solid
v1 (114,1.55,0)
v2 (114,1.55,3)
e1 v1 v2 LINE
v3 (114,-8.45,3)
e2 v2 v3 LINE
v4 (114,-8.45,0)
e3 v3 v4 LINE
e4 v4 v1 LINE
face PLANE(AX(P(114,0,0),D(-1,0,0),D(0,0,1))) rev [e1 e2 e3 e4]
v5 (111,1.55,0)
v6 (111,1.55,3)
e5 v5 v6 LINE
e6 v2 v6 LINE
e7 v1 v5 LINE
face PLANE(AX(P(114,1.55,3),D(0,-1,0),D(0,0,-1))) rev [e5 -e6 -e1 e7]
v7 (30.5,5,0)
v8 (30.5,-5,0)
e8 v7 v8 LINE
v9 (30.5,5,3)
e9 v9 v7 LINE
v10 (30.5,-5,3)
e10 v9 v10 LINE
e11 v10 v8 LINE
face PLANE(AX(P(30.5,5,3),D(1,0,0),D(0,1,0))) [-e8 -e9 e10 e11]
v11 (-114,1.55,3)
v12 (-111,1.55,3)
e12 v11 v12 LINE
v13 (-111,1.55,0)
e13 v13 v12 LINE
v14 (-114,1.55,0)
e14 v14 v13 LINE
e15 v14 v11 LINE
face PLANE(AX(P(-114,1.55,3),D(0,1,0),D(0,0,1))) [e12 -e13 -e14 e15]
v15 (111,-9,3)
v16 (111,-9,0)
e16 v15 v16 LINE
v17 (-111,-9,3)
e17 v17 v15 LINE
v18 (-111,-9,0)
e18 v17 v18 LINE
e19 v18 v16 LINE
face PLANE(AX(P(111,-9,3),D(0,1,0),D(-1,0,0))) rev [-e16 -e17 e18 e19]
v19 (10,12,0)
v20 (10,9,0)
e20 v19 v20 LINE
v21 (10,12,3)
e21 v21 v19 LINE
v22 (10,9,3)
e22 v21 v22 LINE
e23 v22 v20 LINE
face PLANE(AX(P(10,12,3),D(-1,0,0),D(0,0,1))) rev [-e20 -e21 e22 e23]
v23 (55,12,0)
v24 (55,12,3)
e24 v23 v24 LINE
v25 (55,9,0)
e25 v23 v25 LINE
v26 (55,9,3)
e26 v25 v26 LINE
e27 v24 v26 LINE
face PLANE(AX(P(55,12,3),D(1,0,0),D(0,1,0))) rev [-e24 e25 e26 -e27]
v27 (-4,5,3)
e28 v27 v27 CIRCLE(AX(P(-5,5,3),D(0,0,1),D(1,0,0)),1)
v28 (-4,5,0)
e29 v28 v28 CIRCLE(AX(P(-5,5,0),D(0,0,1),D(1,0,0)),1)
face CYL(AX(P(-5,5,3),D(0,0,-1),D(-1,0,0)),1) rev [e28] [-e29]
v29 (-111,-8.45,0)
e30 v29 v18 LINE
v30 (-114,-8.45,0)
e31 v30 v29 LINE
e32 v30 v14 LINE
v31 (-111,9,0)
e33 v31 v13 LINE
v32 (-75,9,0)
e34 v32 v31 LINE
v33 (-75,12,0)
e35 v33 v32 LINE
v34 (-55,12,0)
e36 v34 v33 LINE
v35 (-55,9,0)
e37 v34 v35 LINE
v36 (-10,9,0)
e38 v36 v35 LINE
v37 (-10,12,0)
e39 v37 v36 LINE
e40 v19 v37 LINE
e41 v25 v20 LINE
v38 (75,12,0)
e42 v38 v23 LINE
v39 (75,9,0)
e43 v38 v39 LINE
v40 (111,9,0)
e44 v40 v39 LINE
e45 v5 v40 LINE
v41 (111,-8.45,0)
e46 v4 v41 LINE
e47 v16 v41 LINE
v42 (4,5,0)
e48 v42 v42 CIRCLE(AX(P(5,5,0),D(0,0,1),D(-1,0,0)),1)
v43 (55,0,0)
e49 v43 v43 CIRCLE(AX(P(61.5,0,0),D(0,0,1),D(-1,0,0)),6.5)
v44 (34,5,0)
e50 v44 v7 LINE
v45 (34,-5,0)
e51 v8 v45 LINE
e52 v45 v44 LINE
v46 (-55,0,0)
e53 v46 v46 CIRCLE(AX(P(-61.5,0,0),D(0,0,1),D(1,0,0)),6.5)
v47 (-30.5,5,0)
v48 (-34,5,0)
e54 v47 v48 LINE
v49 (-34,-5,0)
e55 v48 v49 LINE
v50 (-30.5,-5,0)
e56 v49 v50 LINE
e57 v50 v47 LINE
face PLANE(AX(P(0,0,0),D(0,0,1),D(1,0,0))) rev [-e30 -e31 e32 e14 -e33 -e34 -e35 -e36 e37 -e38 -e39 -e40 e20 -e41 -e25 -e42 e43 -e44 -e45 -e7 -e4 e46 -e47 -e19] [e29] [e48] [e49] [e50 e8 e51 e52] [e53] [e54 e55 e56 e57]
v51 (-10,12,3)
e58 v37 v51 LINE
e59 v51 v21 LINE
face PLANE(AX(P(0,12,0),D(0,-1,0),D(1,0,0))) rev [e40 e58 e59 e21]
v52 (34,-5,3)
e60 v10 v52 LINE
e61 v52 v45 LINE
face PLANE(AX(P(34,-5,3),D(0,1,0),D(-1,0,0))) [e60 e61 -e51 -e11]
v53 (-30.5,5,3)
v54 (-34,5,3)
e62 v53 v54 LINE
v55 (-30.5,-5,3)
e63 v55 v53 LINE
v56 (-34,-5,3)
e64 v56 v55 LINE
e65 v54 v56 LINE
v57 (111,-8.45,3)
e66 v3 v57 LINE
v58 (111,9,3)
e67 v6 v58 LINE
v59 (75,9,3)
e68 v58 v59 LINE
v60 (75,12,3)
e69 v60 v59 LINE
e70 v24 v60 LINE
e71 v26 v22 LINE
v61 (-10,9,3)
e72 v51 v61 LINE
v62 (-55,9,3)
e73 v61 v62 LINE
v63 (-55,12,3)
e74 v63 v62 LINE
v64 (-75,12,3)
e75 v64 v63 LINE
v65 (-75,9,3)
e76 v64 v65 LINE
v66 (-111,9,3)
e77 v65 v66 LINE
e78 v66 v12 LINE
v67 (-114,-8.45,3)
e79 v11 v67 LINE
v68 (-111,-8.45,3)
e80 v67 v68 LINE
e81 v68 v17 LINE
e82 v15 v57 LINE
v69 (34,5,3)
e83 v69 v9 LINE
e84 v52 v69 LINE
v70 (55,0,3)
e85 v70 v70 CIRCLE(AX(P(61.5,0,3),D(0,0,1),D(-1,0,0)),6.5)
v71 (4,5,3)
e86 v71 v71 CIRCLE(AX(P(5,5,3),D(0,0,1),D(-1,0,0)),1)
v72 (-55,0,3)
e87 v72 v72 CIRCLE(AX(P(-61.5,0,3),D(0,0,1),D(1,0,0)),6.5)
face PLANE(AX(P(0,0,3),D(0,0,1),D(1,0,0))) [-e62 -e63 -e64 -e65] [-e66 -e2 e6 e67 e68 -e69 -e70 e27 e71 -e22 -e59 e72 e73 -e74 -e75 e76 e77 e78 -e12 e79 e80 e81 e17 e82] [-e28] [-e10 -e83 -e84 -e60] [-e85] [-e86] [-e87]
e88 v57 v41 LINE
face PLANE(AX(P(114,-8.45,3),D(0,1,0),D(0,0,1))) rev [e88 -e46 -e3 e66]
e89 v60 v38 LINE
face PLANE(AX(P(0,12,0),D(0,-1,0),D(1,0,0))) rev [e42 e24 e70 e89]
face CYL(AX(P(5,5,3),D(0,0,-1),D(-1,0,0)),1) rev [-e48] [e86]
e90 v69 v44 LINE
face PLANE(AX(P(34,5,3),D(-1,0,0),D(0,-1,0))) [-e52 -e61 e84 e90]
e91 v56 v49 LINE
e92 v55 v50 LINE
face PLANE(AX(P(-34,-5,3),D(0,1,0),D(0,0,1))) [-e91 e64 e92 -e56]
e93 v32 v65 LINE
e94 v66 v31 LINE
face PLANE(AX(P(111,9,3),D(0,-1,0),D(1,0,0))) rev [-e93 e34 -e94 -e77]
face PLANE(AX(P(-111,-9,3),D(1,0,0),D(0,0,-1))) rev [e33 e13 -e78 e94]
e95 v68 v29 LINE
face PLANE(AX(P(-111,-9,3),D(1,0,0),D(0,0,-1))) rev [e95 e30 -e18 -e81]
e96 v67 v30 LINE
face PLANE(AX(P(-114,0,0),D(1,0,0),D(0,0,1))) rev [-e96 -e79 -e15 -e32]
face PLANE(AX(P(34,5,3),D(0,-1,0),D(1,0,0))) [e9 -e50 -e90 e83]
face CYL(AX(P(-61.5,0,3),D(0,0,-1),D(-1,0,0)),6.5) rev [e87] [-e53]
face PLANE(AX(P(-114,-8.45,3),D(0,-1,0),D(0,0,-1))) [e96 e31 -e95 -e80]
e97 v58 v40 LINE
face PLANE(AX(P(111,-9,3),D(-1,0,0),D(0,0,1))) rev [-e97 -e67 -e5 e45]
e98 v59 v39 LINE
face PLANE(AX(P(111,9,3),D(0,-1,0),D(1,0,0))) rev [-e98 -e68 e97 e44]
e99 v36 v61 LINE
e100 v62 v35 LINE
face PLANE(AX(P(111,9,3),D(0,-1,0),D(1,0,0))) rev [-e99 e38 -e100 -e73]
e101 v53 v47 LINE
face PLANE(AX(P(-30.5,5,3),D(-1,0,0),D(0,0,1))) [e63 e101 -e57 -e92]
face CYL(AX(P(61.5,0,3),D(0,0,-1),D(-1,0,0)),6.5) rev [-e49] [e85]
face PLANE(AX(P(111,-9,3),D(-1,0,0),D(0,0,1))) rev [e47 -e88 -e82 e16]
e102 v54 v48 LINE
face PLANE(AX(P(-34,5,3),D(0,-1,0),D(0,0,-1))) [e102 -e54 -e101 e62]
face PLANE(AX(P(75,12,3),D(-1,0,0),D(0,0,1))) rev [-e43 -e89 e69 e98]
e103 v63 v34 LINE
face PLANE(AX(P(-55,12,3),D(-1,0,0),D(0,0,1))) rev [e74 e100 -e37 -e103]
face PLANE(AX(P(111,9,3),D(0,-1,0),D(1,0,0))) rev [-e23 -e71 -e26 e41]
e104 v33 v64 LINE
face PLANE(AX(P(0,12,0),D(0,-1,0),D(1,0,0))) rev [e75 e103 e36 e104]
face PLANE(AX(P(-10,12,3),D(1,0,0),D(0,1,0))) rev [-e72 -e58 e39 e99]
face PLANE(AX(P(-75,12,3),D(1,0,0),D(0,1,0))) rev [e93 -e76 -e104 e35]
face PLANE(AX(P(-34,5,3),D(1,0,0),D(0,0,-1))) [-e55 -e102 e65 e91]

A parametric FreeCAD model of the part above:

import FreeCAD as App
import Part
import Sketcher
from FreeCAD import Vector
Q = App.Units.Quantity

doc = App.newDocument("Part")
params = doc.addObject("Spreadsheet::Sheet", "Params")
for row, (alias, value) in enumerate([
    ("sketch1_diameter", "13 mm"),
    ("sketch1_diameter2", "2 mm"),
    ("sketch1_width", "222 mm"),
    ("sketch1_height", "18 mm"),
    ("sketch1_height2", "10 mm"),
    ("pad1_length", "3 mm"),
    ("sketch2_width", "20 mm"),
    ("sketch2_height", "3 mm"),
    ("pad2_length", "3 mm"),
    ("sketch3_width", "10 mm"),
    ("sketch3_height", "3 mm"),
    ("pad3_length", "3 mm"),
], start=1):
    params.set(f"A{row}", alias)
    params.set(f"B{row}", "=" + value)
    params.setAlias(f"B{row}", alias)

body = doc.addObject("PartDesign::Body", "Body")

# Sketch on XY plane
sketch1 = doc.addObject("Sketcher::SketchObject", "Sketch")
body.addObject(sketch1)
sketch1.AttachmentSupport = (doc.XY_Plane, [""])
sketch1.MapMode = "FlatFace"
sketch1.addGeometry(Part.LineSegment(Vector(-111, 9, 0), Vector(-111, -9, 0)), False)
sketch1.addGeometry(Part.LineSegment(Vector(-111, -9, 0), Vector(111, -9, 0)), False)
sketch1.addGeometry(Part.LineSegment(Vector(111, -9, 0), Vector(111, 9, 0)), False)
sketch1.addGeometry(Part.LineSegment(Vector(111, 9, 0), Vector(-111, 9, 0)), False)
sketch1.addGeometry(Part.Circle(Vector(-61.5, 0, 0), Vector(0, 0, 1), 6.5), False)
sketch1.addGeometry(Part.LineSegment(Vector(-30.5, -5, 0), Vector(-34, -5, 0)), False)
sketch1.addGeometry(Part.LineSegment(Vector(-34, -5, 0), Vector(-34, 5, 0)), False)
sketch1.addGeometry(Part.LineSegment(Vector(-34, 5, 0), Vector(-30.5, 5, 0)), False)
sketch1.addGeometry(Part.LineSegment(Vector(-30.5, 5, 0), Vector(-30.5, -5, 0)), False)
sketch1.addGeometry(Part.Circle(Vector(-5, 5, 0), Vector(0, 0, 1), 1), False)
sketch1.addGeometry(Part.LineSegment(Vector(34, -5, 0), Vector(30.5, -5, 0)), False)
sketch1.addGeometry(Part.LineSegment(Vector(30.5, -5, 0), Vector(30.5, 5, 0)), False)
sketch1.addGeometry(Part.LineSegment(Vector(30.5, 5, 0), Vector(34, 5, 0)), False)
sketch1.addGeometry(Part.LineSegment(Vector(34, 5, 0), Vector(34, -5, 0)), False)
sketch1.addGeometry(Part.Circle(Vector(61.5, 0, 0), Vector(0, 0, 1), 6.5), False)
sketch1.addGeometry(Part.Circle(Vector(5, 5, 0), Vector(0, 0, 1), 1), False)
sketch1.addConstraint(Sketcher.Constraint("Coincident", 0, 2, 1, 1))
sketch1.addConstraint(Sketcher.Constraint("Coincident", 1, 2, 2, 1))
sketch1.addConstraint(Sketcher.Constraint("Coincident", 2, 2, 3, 1))
sketch1.addConstraint(Sketcher.Constraint("Coincident", 3, 2, 0, 1))
sketch1.addConstraint(Sketcher.Constraint("Coincident", 5, 2, 6, 1))
sketch1.addConstraint(Sketcher.Constraint("Coincident", 6, 2, 7, 1))
sketch1.addConstraint(Sketcher.Constraint("Coincident", 7, 2, 8, 1))
sketch1.addConstraint(Sketcher.Constraint("Coincident", 8, 2, 5, 1))
sketch1.addConstraint(Sketcher.Constraint("Coincident", 10, 2, 11, 1))
sketch1.addConstraint(Sketcher.Constraint("Coincident", 11, 2, 12, 1))
sketch1.addConstraint(Sketcher.Constraint("Coincident", 12, 2, 13, 1))
sketch1.addConstraint(Sketcher.Constraint("Coincident", 13, 2, 10, 1))
sketch1.addConstraint(Sketcher.Constraint("Vertical", 0))
sketch1.addConstraint(Sketcher.Constraint("Horizontal", 1))
sketch1.addConstraint(Sketcher.Constraint("Vertical", 2))
sketch1.addConstraint(Sketcher.Constraint("Horizontal", 3))
sketch1.addConstraint(Sketcher.Constraint("Horizontal", 5))
sketch1.addConstraint(Sketcher.Constraint("Vertical", 6))
sketch1.addConstraint(Sketcher.Constraint("Horizontal", 7))
sketch1.addConstraint(Sketcher.Constraint("Vertical", 8))
sketch1.addConstraint(Sketcher.Constraint("Horizontal", 10))
sketch1.addConstraint(Sketcher.Constraint("Vertical", 11))
sketch1.addConstraint(Sketcher.Constraint("Horizontal", 12))
sketch1.addConstraint(Sketcher.Constraint("Vertical", 13))
sketch1.addConstraint(Sketcher.Constraint("Equal", 4, 14))
sketch1.addConstraint(Sketcher.Constraint("Equal", 9, 15))
sketch1.addConstraint(Sketcher.Constraint("Symmetric", 4, 3, 14, 3, -1, 1))
sketch1.addConstraint(Sketcher.Constraint("Symmetric", 0, 2, 2, 2, -1, 1))
sketch1.addConstraint(Sketcher.Constraint("Symmetric", 7, 2, 10, 2, -1, 1))
sketch1.addConstraint(Sketcher.Constraint("Symmetric", 5, 2, 12, 2, -1, 1))
sketch1.addConstraint(Sketcher.Constraint("Symmetric", 9, 3, 15, 3, -2))
sketch1.addConstraint(Sketcher.Constraint("PointOnObject", 4, 3, -1))
sketch1.addConstraint(Sketcher.Constraint("Horizontal", 15, 3, 6, 2))
sketch1.addConstraint(Sketcher.Constraint("Horizontal", 8, 2, 10, 2))
sketch1.addConstraint(Sketcher.Constraint("Diameter", 4, Q("13 mm")))
sketch1.addConstraint(Sketcher.Constraint("Diameter", 9, Q("2 mm")))
sketch1.addConstraint(Sketcher.Constraint("DistanceX", 1, 1, 1, 2, Q("222 mm")))
sketch1.addConstraint(Sketcher.Constraint("DistanceY", 0, 2, 0, 1, Q("18 mm")))
sketch1.addConstraint(Sketcher.Constraint("DistanceY", 6, 1, 6, 2, Q("10 mm")))
sketch1.addConstraint(Sketcher.Constraint("DistanceX", 5, 2, 5, 1, Q("3.5 mm")))
sketch1.addConstraint(Sketcher.Constraint("DistanceX", 9, 3, -1, 1, Q("5 mm")))
sketch1.addConstraint(Sketcher.Constraint("DistanceX", 5, 2, -1, 1, Q("34 mm")))
sketch1.addConstraint(Sketcher.Constraint("DistanceX", 4, 3, 14, 3, Q("123 mm")))
sketch1.setExpression("Constraints[34]", "Params.sketch1_diameter")
sketch1.setExpression("Constraints[35]", "Params.sketch1_diameter2")
sketch1.setExpression("Constraints[36]", "Params.sketch1_width")
sketch1.setExpression("Constraints[37]", "Params.sketch1_height")
sketch1.setExpression("Constraints[38]", "Params.sketch1_height2")
pad1 = doc.addObject("PartDesign::Pad", "Pad")
body.addObject(pad1)
pad1.Profile = sketch1
pad1.setExpression("Length", "Params.pad1_length")

# Sketch on XZ plane
sketch2 = doc.addObject("Sketcher::SketchObject", "Sketch001")
body.addObject(sketch2)
sketch2.AttachmentSupport = (doc.XZ_Plane, [""])
sketch2.MapMode = "FlatFace"
sketch2.AttachmentOffset = App.Placement(Vector(0, 0, -9), App.Rotation())
sketch2.addGeometry(Part.LineSegment(Vector(-75, 0, 0), Vector(-75, 3, 0)), False)
sketch2.addGeometry(Part.LineSegment(Vector(-75, 3, 0), Vector(-55, 3, 0)), False)
sketch2.addGeometry(Part.LineSegment(Vector(-55, 3, 0), Vector(-55, 0, 0)), False)
sketch2.addGeometry(Part.LineSegment(Vector(-55, 0, 0), Vector(-75, 0, 0)), False)
sketch2.addGeometry(Part.LineSegment(Vector(-10, 0, 0), Vector(-10, 3, 0)), False)
sketch2.addGeometry(Part.LineSegment(Vector(-10, 3, 0), Vector(10, 3, 0)), False)
sketch2.addGeometry(Part.LineSegment(Vector(10, 3, 0), Vector(10, 0, 0)), False)
sketch2.addGeometry(Part.LineSegment(Vector(10, 0, 0), Vector(-10, 0, 0)), False)
sketch2.addGeometry(Part.LineSegment(Vector(55, 0, 0), Vector(55, 3, 0)), False)
sketch2.addGeometry(Part.LineSegment(Vector(55, 3, 0), Vector(75, 3, 0)), False)
sketch2.addGeometry(Part.LineSegment(Vector(75, 3, 0), Vector(75, 0, 0)), False)
sketch2.addGeometry(Part.LineSegment(Vector(75, 0, 0), Vector(55, 0, 0)), False)
sketch2.addConstraint(Sketcher.Constraint("Coincident", 0, 2, 1, 1))
sketch2.addConstraint(Sketcher.Constraint("Coincident", 1, 2, 2, 1))
sketch2.addConstraint(Sketcher.Constraint("Coincident", 2, 2, 3, 1))
sketch2.addConstraint(Sketcher.Constraint("Coincident", 3, 2, 0, 1))
sketch2.addConstraint(Sketcher.Constraint("Coincident", 4, 2, 5, 1))
sketch2.addConstraint(Sketcher.Constraint("Coincident", 5, 2, 6, 1))
sketch2.addConstraint(Sketcher.Constraint("Coincident", 6, 2, 7, 1))
sketch2.addConstraint(Sketcher.Constraint("Coincident", 7, 2, 4, 1))
sketch2.addConstraint(Sketcher.Constraint("Coincident", 8, 2, 9, 1))
sketch2.addConstraint(Sketcher.Constraint("Coincident", 9, 2, 10, 1))
sketch2.addConstraint(Sketcher.Constraint("Coincident", 10, 2, 11, 1))
sketch2.addConstraint(Sketcher.Constraint("Coincident", 11, 2, 8, 1))
sketch2.addConstraint(Sketcher.Constraint("Vertical", 0))
sketch2.addConstraint(Sketcher.Constraint("Horizontal", 1))
sketch2.addConstraint(Sketcher.Constraint("Vertical", 2))
sketch2.addConstraint(Sketcher.Constraint("Horizontal", 3))
sketch2.addConstraint(Sketcher.Constraint("Vertical", 4))
sketch2.addConstraint(Sketcher.Constraint("Horizontal", 5))
sketch2.addConstraint(Sketcher.Constraint("Vertical", 6))
sketch2.addConstraint(Sketcher.Constraint("Horizontal", 7))
sketch2.addConstraint(Sketcher.Constraint("Vertical", 8))
sketch2.addConstraint(Sketcher.Constraint("Horizontal", 9))
sketch2.addConstraint(Sketcher.Constraint("Vertical", 10))
sketch2.addConstraint(Sketcher.Constraint("Horizontal", 11))
sketch2.addConstraint(Sketcher.Constraint("Symmetric", 6, 2, 7, 2, -1, 1))
sketch2.addConstraint(Sketcher.Constraint("Symmetric", 3, 2, 10, 2, -1, 1))
sketch2.addConstraint(Sketcher.Constraint("Symmetric", 1, 2, 8, 2, -2))
sketch2.addConstraint(Sketcher.Constraint("PointOnObject", 2, 2, -1))
sketch2.addConstraint(Sketcher.Constraint("Horizontal", 1, 2, 4, 2))
sketch2.addConstraint(Sketcher.Constraint("Equal", 3, 5))
sketch2.addConstraint(Sketcher.Constraint("DistanceX", 1, 1, 1, 2, Q("20 mm")))
sketch2.addConstraint(Sketcher.Constraint("DistanceY", 0, 1, 0, 2, Q("3 mm")))
sketch2.addConstraint(Sketcher.Constraint("DistanceX", 0, 2, -1, 1, Q("75 mm")))
sketch2.setExpression("Constraints[30]", "Params.sketch2_width")
sketch2.setExpression("Constraints[31]", "Params.sketch2_height")
pad2 = doc.addObject("PartDesign::Pad", "Pad001")
body.addObject(pad2)
pad2.Profile = sketch2
pad2.setExpression("Length", "Params.pad2_length")
pad2.Reversed = True

# Sketch on YZ plane
sketch3 = doc.addObject("Sketcher::SketchObject", "Sketch002")
body.addObject(sketch3)
sketch3.AttachmentSupport = (doc.YZ_Plane, [""])
sketch3.MapMode = "FlatFace"
sketch3.AttachmentOffset = App.Placement(Vector(0, 0, 111), App.Rotation())
sketch3.addGeometry(Part.LineSegment(Vector(1.55, 3, 0), Vector(-8.45, 3, 0)), False)
sketch3.addGeometry(Part.LineSegment(Vector(-8.45, 3, 0), Vector(-8.45, 0, 0)), False)
sketch3.addGeometry(Part.LineSegment(Vector(-8.45, 0, 0), Vector(1.55, 0, 0)), False)
sketch3.addGeometry(Part.LineSegment(Vector(1.55, 0, 0), Vector(1.55, 3, 0)), False)
sketch3.addConstraint(Sketcher.Constraint("Coincident", 0, 2, 1, 1))
sketch3.addConstraint(Sketcher.Constraint("Coincident", 1, 2, 2, 1))
sketch3.addConstraint(Sketcher.Constraint("Coincident", 2, 2, 3, 1))
sketch3.addConstraint(Sketcher.Constraint("Coincident", 3, 2, 0, 1))
sketch3.addConstraint(Sketcher.Constraint("Horizontal", 0))
sketch3.addConstraint(Sketcher.Constraint("Vertical", 1))
sketch3.addConstraint(Sketcher.Constraint("Horizontal", 2))
sketch3.addConstraint(Sketcher.Constraint("Vertical", 3))
sketch3.addConstraint(Sketcher.Constraint("PointOnObject", 1, 2, -1))
sketch3.addConstraint(Sketcher.Constraint("DistanceX", 0, 2, 0, 1, Q("10 mm")))
sketch3.addConstraint(Sketcher.Constraint("DistanceY", 1, 2, 1, 1, Q("3 mm")))
sketch3.addConstraint(Sketcher.Constraint("DistanceX", 0, 2, -1, 1, Q("8.45 mm")))
sketch3.setExpression("Constraints[9]", "Params.sketch3_width")
sketch3.setExpression("Constraints[10]", "Params.sketch3_height")
pad3 = doc.addObject("PartDesign::Pad", "Pad002")
body.addObject(pad3)
pad3.Profile = sketch3
pad3.setExpression("Length", "Params.pad3_length")
doc.recompute()

mirrored = doc.addObject("PartDesign::Mirrored", "Mirrored")
body.addObject(mirrored)
mirrored.Originals = [pad3]
mirrored.MirrorPlane = (doc.YZ_Plane, [""])
body.Tip = mirrored

doc.recompute()
